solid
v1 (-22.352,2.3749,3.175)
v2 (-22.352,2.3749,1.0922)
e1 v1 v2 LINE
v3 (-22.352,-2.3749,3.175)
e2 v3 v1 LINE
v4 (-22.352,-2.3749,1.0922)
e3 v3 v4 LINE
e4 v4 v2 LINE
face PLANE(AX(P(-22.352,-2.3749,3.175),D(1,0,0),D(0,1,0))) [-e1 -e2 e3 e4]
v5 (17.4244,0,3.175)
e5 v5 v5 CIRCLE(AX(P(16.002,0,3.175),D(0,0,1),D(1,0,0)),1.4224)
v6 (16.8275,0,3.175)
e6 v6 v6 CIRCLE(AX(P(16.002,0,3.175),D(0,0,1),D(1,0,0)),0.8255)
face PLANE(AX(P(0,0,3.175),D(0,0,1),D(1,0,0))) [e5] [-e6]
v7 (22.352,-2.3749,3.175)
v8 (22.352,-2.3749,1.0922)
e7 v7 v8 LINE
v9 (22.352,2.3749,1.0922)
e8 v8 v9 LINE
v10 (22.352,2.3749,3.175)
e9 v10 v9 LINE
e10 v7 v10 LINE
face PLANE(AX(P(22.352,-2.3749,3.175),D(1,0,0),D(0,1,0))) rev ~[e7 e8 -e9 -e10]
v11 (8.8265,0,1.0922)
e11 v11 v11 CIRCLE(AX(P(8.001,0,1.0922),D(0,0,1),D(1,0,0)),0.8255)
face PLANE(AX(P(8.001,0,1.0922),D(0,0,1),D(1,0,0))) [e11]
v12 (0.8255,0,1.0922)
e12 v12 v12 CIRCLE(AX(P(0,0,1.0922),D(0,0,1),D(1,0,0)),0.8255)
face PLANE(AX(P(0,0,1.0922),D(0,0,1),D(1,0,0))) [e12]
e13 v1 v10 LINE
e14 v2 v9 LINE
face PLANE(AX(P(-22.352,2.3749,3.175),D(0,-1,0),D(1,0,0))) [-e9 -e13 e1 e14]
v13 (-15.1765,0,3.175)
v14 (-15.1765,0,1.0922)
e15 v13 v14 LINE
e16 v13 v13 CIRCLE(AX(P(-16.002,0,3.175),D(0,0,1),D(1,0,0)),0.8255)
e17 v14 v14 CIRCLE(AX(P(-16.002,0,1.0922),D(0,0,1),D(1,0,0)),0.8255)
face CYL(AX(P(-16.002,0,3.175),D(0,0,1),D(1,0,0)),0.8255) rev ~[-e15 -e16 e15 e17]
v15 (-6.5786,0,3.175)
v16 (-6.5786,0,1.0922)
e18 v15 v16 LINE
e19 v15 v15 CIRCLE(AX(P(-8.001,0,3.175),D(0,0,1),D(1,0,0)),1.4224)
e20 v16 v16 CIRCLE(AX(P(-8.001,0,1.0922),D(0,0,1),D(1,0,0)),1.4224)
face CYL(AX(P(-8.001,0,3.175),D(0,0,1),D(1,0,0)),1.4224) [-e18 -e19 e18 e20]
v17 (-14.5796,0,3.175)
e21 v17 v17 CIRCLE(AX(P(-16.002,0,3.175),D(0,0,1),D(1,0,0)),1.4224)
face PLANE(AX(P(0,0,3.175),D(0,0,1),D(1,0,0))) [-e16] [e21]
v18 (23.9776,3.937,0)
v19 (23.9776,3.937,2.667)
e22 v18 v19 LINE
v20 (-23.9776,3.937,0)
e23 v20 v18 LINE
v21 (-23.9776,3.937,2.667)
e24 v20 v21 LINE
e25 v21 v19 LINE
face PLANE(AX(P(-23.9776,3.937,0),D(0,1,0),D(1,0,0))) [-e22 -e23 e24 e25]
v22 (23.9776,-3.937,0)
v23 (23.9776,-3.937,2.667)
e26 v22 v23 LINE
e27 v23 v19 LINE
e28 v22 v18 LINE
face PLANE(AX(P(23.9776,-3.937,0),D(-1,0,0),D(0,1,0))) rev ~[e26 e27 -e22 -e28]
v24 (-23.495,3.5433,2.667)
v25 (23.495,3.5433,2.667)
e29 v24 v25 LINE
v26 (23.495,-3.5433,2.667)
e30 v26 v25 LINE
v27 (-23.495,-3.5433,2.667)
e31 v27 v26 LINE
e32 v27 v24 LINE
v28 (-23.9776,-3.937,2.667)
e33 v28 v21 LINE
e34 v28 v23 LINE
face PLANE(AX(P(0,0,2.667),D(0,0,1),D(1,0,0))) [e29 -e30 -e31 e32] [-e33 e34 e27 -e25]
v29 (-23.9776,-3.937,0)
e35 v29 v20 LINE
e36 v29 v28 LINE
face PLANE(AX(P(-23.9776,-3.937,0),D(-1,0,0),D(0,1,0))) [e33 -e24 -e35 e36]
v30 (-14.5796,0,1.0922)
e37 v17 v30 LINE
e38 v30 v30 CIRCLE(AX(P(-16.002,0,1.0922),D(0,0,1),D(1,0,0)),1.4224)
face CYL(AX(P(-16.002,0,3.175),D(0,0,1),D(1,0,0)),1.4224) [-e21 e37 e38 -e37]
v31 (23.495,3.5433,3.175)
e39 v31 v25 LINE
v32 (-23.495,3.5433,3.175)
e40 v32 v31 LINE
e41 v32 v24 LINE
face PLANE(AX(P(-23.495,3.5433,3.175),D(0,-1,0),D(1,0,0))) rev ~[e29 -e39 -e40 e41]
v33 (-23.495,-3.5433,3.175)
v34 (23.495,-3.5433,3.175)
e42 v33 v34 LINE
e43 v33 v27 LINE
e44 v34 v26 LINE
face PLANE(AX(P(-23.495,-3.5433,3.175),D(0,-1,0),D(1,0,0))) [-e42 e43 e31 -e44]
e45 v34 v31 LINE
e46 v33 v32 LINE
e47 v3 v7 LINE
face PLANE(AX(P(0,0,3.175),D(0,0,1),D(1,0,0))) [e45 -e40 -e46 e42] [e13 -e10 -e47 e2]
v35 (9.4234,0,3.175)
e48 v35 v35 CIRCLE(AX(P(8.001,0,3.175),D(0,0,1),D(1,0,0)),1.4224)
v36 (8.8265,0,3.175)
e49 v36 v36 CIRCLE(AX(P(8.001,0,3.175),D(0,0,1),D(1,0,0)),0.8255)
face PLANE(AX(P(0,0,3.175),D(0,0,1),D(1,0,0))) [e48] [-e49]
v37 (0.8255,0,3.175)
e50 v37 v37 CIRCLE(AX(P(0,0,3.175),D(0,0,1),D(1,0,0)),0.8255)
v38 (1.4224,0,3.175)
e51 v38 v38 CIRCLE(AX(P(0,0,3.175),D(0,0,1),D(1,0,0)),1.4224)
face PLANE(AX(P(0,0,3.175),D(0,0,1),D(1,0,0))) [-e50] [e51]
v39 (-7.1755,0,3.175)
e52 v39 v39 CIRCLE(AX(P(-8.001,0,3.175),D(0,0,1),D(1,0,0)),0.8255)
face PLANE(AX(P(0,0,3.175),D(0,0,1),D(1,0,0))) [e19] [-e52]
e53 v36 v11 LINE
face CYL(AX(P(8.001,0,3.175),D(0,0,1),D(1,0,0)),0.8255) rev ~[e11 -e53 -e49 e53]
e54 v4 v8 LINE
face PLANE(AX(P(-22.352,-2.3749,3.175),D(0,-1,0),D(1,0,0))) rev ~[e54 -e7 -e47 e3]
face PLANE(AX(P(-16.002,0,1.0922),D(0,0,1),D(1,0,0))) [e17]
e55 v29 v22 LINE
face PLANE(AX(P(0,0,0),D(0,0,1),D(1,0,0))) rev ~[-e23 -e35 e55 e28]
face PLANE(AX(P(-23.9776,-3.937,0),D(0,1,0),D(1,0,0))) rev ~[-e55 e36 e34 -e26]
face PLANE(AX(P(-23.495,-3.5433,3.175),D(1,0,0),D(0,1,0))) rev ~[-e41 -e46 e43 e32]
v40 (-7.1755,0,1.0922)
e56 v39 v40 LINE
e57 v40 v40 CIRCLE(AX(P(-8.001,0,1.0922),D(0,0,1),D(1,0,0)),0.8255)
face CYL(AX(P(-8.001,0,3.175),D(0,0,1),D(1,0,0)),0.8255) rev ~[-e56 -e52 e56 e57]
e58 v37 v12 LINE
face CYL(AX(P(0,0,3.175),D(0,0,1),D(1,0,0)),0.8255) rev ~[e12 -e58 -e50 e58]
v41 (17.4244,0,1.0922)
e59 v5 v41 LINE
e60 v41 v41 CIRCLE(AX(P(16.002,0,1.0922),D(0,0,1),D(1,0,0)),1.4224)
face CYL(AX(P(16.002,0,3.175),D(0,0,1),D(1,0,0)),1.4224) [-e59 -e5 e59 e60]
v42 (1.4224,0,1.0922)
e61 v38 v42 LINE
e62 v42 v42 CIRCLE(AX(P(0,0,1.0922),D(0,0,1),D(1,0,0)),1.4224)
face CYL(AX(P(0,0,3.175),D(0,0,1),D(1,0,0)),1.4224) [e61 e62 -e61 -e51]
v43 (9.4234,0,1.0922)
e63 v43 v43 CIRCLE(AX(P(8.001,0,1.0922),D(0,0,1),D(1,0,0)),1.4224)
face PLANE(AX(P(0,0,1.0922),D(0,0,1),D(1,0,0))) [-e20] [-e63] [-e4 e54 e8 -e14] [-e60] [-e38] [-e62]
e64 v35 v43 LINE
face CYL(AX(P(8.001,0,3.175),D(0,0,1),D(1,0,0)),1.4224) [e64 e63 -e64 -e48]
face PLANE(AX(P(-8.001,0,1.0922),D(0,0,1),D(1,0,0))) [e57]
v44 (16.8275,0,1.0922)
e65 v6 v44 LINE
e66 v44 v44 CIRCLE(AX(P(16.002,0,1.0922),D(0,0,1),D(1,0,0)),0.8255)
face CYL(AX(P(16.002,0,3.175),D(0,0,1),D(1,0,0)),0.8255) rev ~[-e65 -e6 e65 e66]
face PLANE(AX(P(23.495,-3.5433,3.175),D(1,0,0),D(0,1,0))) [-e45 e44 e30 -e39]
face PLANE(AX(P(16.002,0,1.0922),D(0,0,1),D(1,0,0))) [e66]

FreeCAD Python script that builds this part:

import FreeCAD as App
import Part
import Sketcher

V = App.Vector
Q = App.Units.Quantity

doc = App.newDocument("Part")
body = doc.addObject("PartDesign::Body", "Body")

# Sketch on XY plane
sketch1 = body.newObject("Sketcher::SketchObject", "Sketch")
sketch1.AttachmentSupport = (doc.getObject("XY_Plane"), [""])
sketch1.MapMode = "FlatFace"
sketch1.addGeometry([
    Part.LineSegment(V(-23.9776, 3.937, 0), V(-23.9776, -3.937, 0)),
    Part.LineSegment(V(-23.9776, -3.937, 0), V(23.9776, -3.937, 0)),
    Part.LineSegment(V(23.9776, -3.937, 0), V(23.9776, 3.937, 0)),
    Part.LineSegment(V(23.9776, 3.937, 0), V(-23.9776, 3.937, 0)),
], False)
sketch1.addConstraint([
    Sketcher.Constraint("Coincident", 0, 2, 1, 1),
    Sketcher.Constraint("Coincident", 1, 2, 2, 1),
    Sketcher.Constraint("Coincident", 2, 2, 3, 1),
    Sketcher.Constraint("Coincident", 3, 2, 0, 1),
    Sketcher.Constraint("Vertical", 0),
    Sketcher.Constraint("Horizontal", 1),
    Sketcher.Constraint("Vertical", 2),
    Sketcher.Constraint("Horizontal", 3),
    Sketcher.Constraint("Symmetric", 0, 2, 2, 2, -1, 1),
    Sketcher.Constraint("DistanceY", 0, 2, 0, 1, Q("0.31 in")),
    Sketcher.Constraint("DistanceX", 1, 1, 1, 2, Q("1.888 in")),
])
pad1 = body.newObject("PartDesign::Pad", "Pad")
pad1.Profile = sketch1
pad1.Length = Q("0.125 in")

# Sketch on XY plane
sketch2 = body.newObject("Sketcher::SketchObject", "Sketch001")
sketch2.AttachmentSupport = (doc.getObject("XY_Plane"), [""])
sketch2.MapMode = "FlatFace"
sketch2.AttachmentOffset = App.Placement(V(0, 0, 0.125 * 25.4), App.Rotation())
sketch2.addGeometry([
    Part.LineSegment(V(-22.352, 2.3749, 0), V(-22.352, -2.3749, 0)),  # 0
    Part.LineSegment(V(-22.352, -2.3749, 0), V(22.352, -2.3749, 0)),  # 1
    Part.LineSegment(V(22.352, -2.3749, 0), V(22.352, 2.3749, 0)),  # 2
    Part.LineSegment(V(22.352, 2.3749, 0), V(-22.352, 2.3749, 0)),  # 3
    Part.Circle(V(-16.002, 0, 0), V(0, 0, 1), 1.4224),  # 4
    Part.Circle(V(-8.001, 0, 0), V(0, 0, 1), 1.4224),  # 5
    Part.Circle(V(0, 0, 0), V(0, 0, 1), 1.4224),  # 6
    Part.Circle(V(8.001, 0, 0), V(0, 0, 1), 1.4224),  # 7
    Part.Circle(V(16.002, 0, 0), V(0, 0, 1), 1.4224),  # 8
], False)
sketch2.addConstraint([
    Sketcher.Constraint("Coincident", 0, 2, 1, 1),
    Sketcher.Constraint("Coincident", 1, 2, 2, 1),
    Sketcher.Constraint("Coincident", 2, 2, 3, 1),
    Sketcher.Constraint("Coincident", 3, 2, 0, 1),
    Sketcher.Constraint("Vertical", 0),
    Sketcher.Constraint("Horizontal", 1),
    Sketcher.Constraint("Vertical", 2),
    Sketcher.Constraint("Horizontal", 3),
    Sketcher.Constraint("Coincident", 6, 3, -1, 1),
    Sketcher.Constraint("Equal", 4, 5),
    Sketcher.Constraint("Equal", 5, 6),
    Sketcher.Constraint("Equal", 6, 7),
    Sketcher.Constraint("Equal", 7, 8),
    Sketcher.Constraint("Symmetric", 5, 3, 7, 3, -1, 1),
    Sketcher.Constraint("Symmetric", 4, 3, 8, 3, -1, 1),
    Sketcher.Constraint("Symmetric", 0, 2, 2, 2, -1, 1),
    Sketcher.Constraint("PointOnObject", 4, 3, -1),
    Sketcher.Constraint("PointOnObject", 5, 3, -1),
    Sketcher.Constraint("Diameter", 4, Q("0.112 in")),
    Sketcher.Constraint("DistanceX", 1, 1, 1, 2, Q("1.76 in")),
    Sketcher.Constraint("DistanceY", 0, 2, 0, 1, Q("0.187 in")),
    Sketcher.Constraint("DistanceX", 4, 3, -1, 1, Q("0.63 in")),
    Sketcher.Constraint("DistanceX", 5, 3, 7, 3, Q("0.63 in")),
])
pocket1 = body.newObject("PartDesign::Pocket", "Pocket")
pocket1.Profile = sketch2
pocket1.Length = Q("0.082 in")

# Sketch on XY plane
sketch3 = body.newObject("Sketcher::SketchObject", "Sketch002")
sketch3.AttachmentSupport = (doc.getObject("XY_Plane"), [""])
sketch3.MapMode = "FlatFace"
sketch3.AttachmentOffset = App.Placement(V(0, 0, 0.125 * 25.4), App.Rotation())
sketch3.addGeometry([
    Part.Circle(V(16.002, 0, 0), V(0, 0, 1), 0.8255),  # 0
    Part.Circle(V(8.001, 0, 0), V(0, 0, 1), 0.8255),  # 1
    Part.Circle(V(-8.001, 0, 0), V(0, 0, 1), 0.8255),  # 2
    Part.Circle(V(0, 0, 0), V(0, 0, 1), 0.8255),  # 3
    Part.Circle(V(-16.002, 0, 0), V(0, 0, 1), 0.8255),  # 4
], False)
sketch3.addConstraint([
    Sketcher.Constraint("Coincident", 3, 3, -1, 1),
    Sketcher.Constraint("Equal", 0, 1),
    Sketcher.Constraint("Equal", 1, 2),
    Sketcher.Constraint("Equal", 2, 3),
    Sketcher.Constraint("Equal", 3, 4),
    Sketcher.Constraint("Symmetric", 1, 3, 2, 3, -1, 1),
    Sketcher.Constraint("Symmetric", 0, 3, 4, 3, -1, 1),
    Sketcher.Constraint("PointOnObject", 0, 3, -1),
    Sketcher.Constraint("PointOnObject", 1, 3, -1),
    Sketcher.Constraint("Diameter", 0, Q("0.065 in")),
    Sketcher.Constraint("DistanceX", -1, 1, 0, 3, Q("0.63 in")),
    Sketcher.Constraint("DistanceX", 2, 3, 1, 3, Q("0.63 in")),
])
pocket2 = body.newObject("PartDesign::Pocket", "Pocket001")
pocket2.Profile = sketch3
pocket2.Length = Q("0.082 in")

# Sketch on XY plane
sketch4 = body.newObject("Sketcher::SketchObject", "Sketch003")
sketch4.AttachmentSupport = (doc.getObject("XY_Plane"), [""])
sketch4.MapMode = "FlatFace"
sketch4.AttachmentOffset = App.Placement(V(0, 0, 0.125 * 25.4), App.Rotation())
sketch4.addGeometry([
    Part.LineSegment(V(-24.536738, 4.677321, 0), V(-24.536738, -4.677321, 0)),  # 0
    Part.LineSegment(V(-24.536738, -4.677321, 0), V(24.536738, -4.677321, 0)),  # 1
    Part.LineSegment(V(24.536738, -4.677321, 0), V(24.536738, 4.677321, 0)),  # 2
    Part.LineSegment(V(24.536738, 4.677321, 0), V(-24.536738, 4.677321, 0)),  # 3
    Part.LineSegment(V(23.495, -3.5433, 0), V(-23.495, -3.5433, 0)),  # 4
    Part.LineSegment(V(-23.495, -3.5433, 0), V(-23.495, 3.5433, 0)),  # 5
    Part.LineSegment(V(-23.495, 3.5433, 0), V(23.495, 3.5433, 0)),  # 6
    Part.LineSegment(V(23.495, 3.5433, 0), V(23.495, -3.5433, 0)),  # 7
], False)
sketch4.addConstraint([
    Sketcher.Constraint("Coincident", 0, 2, 1, 1),
    Sketcher.Constraint("Coincident", 1, 2, 2, 1),
    Sketcher.Constraint("Coincident", 2, 2, 3, 1),
    Sketcher.Constraint("Coincident", 3, 2, 0, 1),
    Sketcher.Constraint("Coincident", 4, 2, 5, 1),
    Sketcher.Constraint("Coincident", 5, 2, 6, 1),
    Sketcher.Constraint("Coincident", 6, 2, 7, 1),
    Sketcher.Constraint("Coincident", 7, 2, 4, 1),
    Sketcher.Constraint("Vertical", 0),
    Sketcher.Constraint("Horizontal", 1),
    Sketcher.Constraint("Vertical", 2),
    Sketcher.Constraint("Horizontal", 3),
    Sketcher.Constraint("Horizontal", 4),
    Sketcher.Constraint("Vertical", 5),
    Sketcher.Constraint("Horizontal", 6),
    Sketcher.Constraint("Vertical", 7),
    Sketcher.Constraint("Symmetric", 0, 2, 2, 2, -1, 1),
    Sketcher.Constraint("Symmetric", 4, 2, 6, 2, -1, 1),
    Sketcher.Constraint("DistanceX", 4, 2, 4, 1, Q("1.85 in")),
    Sketcher.Constraint("DistanceY", 5, 1, 5, 2, Q("0.279 in")),
    Sketcher.Constraint("DistanceX", 1, 1, 1, 2, Q("49.073476 mm")),
    Sketcher.Constraint("DistanceY", 0, 2, 0, 1, Q("9.354642 mm")),
])
pocket3 = body.newObject("PartDesign::Pocket", "Pocket002")
pocket3.Profile = sketch4
pocket3.Length = Q("0.02 in")

doc.recompute()
